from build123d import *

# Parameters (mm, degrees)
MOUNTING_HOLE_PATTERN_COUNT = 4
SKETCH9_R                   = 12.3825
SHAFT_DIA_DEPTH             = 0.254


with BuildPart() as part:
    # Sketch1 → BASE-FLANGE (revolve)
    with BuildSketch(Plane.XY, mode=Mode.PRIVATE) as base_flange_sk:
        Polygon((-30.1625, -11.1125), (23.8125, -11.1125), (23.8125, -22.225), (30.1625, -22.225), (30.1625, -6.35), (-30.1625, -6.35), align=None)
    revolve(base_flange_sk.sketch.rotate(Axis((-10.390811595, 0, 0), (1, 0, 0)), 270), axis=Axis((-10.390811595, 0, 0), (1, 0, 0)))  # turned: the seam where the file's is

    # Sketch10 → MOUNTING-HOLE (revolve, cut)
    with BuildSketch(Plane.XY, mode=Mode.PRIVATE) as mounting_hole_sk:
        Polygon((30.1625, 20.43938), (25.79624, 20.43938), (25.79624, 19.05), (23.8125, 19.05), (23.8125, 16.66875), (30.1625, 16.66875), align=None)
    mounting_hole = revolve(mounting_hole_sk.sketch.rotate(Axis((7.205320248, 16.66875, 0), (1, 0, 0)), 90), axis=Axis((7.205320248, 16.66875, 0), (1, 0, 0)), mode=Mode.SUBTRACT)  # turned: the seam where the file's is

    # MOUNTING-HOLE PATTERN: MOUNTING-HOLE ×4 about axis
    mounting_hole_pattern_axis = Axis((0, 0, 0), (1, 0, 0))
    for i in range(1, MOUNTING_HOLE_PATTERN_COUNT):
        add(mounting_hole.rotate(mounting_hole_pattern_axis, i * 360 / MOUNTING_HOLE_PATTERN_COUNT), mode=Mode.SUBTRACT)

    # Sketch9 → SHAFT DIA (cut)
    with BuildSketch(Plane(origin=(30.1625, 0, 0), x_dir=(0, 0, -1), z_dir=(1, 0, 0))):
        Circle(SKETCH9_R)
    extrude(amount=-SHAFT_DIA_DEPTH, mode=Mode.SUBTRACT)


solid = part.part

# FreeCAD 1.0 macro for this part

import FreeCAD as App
import Part
import Sketcher

V = App.Vector
Q = App.Units.Quantity

doc = App.newDocument("Part")
body = doc.addObject("PartDesign::Body", "Body")

sketch1 = body.newObject("Sketcher::SketchObject", "Sketch")
sketch1.AttachmentSupport = (doc.getObject("XY_Plane"), [""])
sketch1.MapMode = "FlatFace"
sketch1.addGeometry(Part.LineSegment(V(-30.2, -11.1, 0), V(23.8, -11.1, 0)), False)
sketch1.addGeometry(Part.LineSegment(V(23.8, -11.1, 0), V(23.8, -22.2, 0)), False)
sketch1.addGeometry(Part.LineSegment(V(23.8, -22.2, 0), V(30.2, -22.2, 0)), False)
sketch1.addGeometry(Part.LineSegment(V(30.2, -22.2, 0), V(30.2, -6.3, 0)), False)
sketch1.addGeometry(Part.LineSegment(V(30.2, -6.3, 0), V(-30.2, -6.3, 0)), False)
sketch1.addGeometry(Part.LineSegment(V(-30.2, -6.3, 0), V(-30.2, -11.1, 0)), False)
sketch1.addConstraint(Sketcher.Constraint("Coincident", 0, 2, 1, 1))
sketch1.addConstraint(Sketcher.Constraint("Coincident", 1, 2, 2, 1))
sketch1.addConstraint(Sketcher.Constraint("Coincident", 2, 2, 3, 1))
sketch1.addConstraint(Sketcher.Constraint("Coincident", 3, 2, 4, 1))
sketch1.addConstraint(Sketcher.Constraint("Coincident", 4, 2, 5, 1))
sketch1.addConstraint(Sketcher.Constraint("Coincident", 5, 2, 0, 1))
sketch1.addConstraint(Sketcher.Constraint("Horizontal", 0))
sketch1.addConstraint(Sketcher.Constraint("Vertical", 1))
sketch1.addConstraint(Sketcher.Constraint("Horizontal", 2))
sketch1.addConstraint(Sketcher.Constraint("Vertical", 3))
sketch1.addConstraint(Sketcher.Constraint("Horizontal", 4))
sketch1.addConstraint(Sketcher.Constraint("Vertical", 5))
sketch1.addConstraint(Sketcher.Constraint("DistanceX", 2, 1, 2, 2, Q("0.25 in")))
sketch1.addConstraint(Sketcher.Constraint("DistanceX", 0, 1, 0, 2, Q("2.125 in")))
sketch1.addConstraint(Sketcher.Constraint("DistanceY", 1, 2, 1, 1, Q("0.4375 in")))
sketch1.addConstraint(Sketcher.Constraint("DistanceY", 3, 1, 3, 2, Q("0.625 in")))
sketch1.addConstraint(Sketcher.Constraint("DistanceY", 3, 2, -1, 1, Q("0.25 in")))
sketch1.addConstraint(Sketcher.Constraint("DistanceX", -1, 1, 0, 2, Q("0.9375 in")))
revolution = body.newObject("PartDesign::Revolution", "Revolution")
revolution.Profile = sketch1
revolution.ReferenceAxis = (sketch1, ["H_Axis"])
revolution.Angle = 360

sketch2 = body.newObject("Sketcher::SketchObject", "Sketch001")
sketch2.AttachmentSupport = (doc.getObject("XY_Plane"), [""])
sketch2.MapMode = "FlatFace"
sketch2.addGeometry(Part.LineSegment(V(30.2, 20.4, 0), V(25.8, 20.4, 0)), False)
sketch2.addGeometry(Part.LineSegment(V(25.8, 20.4, 0), V(25.8, 19.1, 0)), False)
sketch2.addGeometry(Part.LineSegment(V(25.8, 19.1, 0), V(23.8, 19.1, 0)), False)
sketch2.addGeometry(Part.LineSegment(V(23.8, 19.1, 0), V(23.8, 16.7, 0)), False)
sketch2.addGeometry(Part.LineSegment(V(23.8, 16.7, 0), V(30.2, 16.7, 0)), False)
sketch2.addGeometry(Part.LineSegment(V(30.2, 16.7, 0), V(30.2, 20.4, 0)), False)
sketch2.addGeometry(Part.LineSegment(V(23.8, 16.7, 0), V(30.2, 16.7, 0)), True)
sketch2.addConstraint(Sketcher.Constraint("Coincident", 0, 2, 1, 1))
sketch2.addConstraint(Sketcher.Constraint("Coincident", 1, 2, 2, 1))
sketch2.addConstraint(Sketcher.Constraint("Coincident", 2, 2, 3, 1))
sketch2.addConstraint(Sketcher.Constraint("Coincident", 3, 2, 4, 1))
sketch2.addConstraint(Sketcher.Constraint("Coincident", 4, 2, 5, 1))
sketch2.addConstraint(Sketcher.Constraint("Coincident", 5, 2, 0, 1))
sketch2.addConstraint(Sketcher.Constraint("Horizontal", 0))
sketch2.addConstraint(Sketcher.Constraint("Vertical", 1))
sketch2.addConstraint(Sketcher.Constraint("Horizontal", 2))
sketch2.addConstraint(Sketcher.Constraint("Vertical", 3))
sketch2.addConstraint(Sketcher.Constraint("Horizontal", 4))
sketch2.addConstraint(Sketcher.Constraint("Vertical", 5))
sketch2.addConstraint(Sketcher.Constraint("Horizontal", 6))
sketch2.addConstraint(Sketcher.Constraint("Coincident", 6, 1, 3, 2))
sketch2.addConstraint(Sketcher.Constraint("Vertical", 5, 2, 6, 2))
sketch2.addConstraint(Sketcher.Constraint("DistanceX", 4, 1, 4, 2, Q("0.25 in")))
sketch2.addConstraint(Sketcher.Constraint("DistanceY", 3, 2, 3, 1, Q("0.09375 in")))
sketch2.addConstraint(Sketcher.Constraint("DistanceY", -1, 1, 1, 2, Q("0.75 in")))
sketch2.addConstraint(Sketcher.Constraint("DistanceX", 0, 2, 0, 1, Q("0.1719 in")))
sketch2.addConstraint(Sketcher.Constraint("DistanceY", 1, 2, 1, 1, Q("0.0547 in")))
sketch2.addConstraint(Sketcher.Constraint("DistanceX", -1, 1, 2, 2, Q("0.9375 in")))
groove = body.newObject("PartDesign::Groove", "Groove")
groove.Profile = sketch2
groove.ReferenceAxis = (sketch2, ["Axis0"])
groove.Angle = 360
doc.recompute()

polarpattern = body.newObject("PartDesign::PolarPattern", "PolarPattern")
polarpattern.Originals = [groove]
polarpattern.Axis = (doc.getObject("X_Axis"), [""])
polarpattern.Angle = 360
polarpattern.Occurrences = 4
body.Tip = polarpattern

sketch3 = body.newObject("Sketcher::SketchObject", "Sketch002")
sketch3.AttachmentSupport = (doc.getObject("YZ_Plane"), [""])
sketch3.MapMode = "FlatFace"
sketch3.AttachmentOffset = App.Placement(V(0, 0, 1.1875 * 25.4), App.Rotation())
sketch3.addGeometry(Part.Circle(V(0, 0, 0), V(0, 0, 1), 12), False)
sketch3.addConstraint(Sketcher.Constraint("Coincident", 0, 3, -1, 1))
sketch3.addConstraint(Sketcher.Constraint("Diameter", 0, Q("0.975 in")))
pocket1 = body.newObject("PartDesign::Pocket", "Pocket")
pocket1.Profile = sketch3
pocket1.Length = Q("0.01 in")

doc.recompute()
